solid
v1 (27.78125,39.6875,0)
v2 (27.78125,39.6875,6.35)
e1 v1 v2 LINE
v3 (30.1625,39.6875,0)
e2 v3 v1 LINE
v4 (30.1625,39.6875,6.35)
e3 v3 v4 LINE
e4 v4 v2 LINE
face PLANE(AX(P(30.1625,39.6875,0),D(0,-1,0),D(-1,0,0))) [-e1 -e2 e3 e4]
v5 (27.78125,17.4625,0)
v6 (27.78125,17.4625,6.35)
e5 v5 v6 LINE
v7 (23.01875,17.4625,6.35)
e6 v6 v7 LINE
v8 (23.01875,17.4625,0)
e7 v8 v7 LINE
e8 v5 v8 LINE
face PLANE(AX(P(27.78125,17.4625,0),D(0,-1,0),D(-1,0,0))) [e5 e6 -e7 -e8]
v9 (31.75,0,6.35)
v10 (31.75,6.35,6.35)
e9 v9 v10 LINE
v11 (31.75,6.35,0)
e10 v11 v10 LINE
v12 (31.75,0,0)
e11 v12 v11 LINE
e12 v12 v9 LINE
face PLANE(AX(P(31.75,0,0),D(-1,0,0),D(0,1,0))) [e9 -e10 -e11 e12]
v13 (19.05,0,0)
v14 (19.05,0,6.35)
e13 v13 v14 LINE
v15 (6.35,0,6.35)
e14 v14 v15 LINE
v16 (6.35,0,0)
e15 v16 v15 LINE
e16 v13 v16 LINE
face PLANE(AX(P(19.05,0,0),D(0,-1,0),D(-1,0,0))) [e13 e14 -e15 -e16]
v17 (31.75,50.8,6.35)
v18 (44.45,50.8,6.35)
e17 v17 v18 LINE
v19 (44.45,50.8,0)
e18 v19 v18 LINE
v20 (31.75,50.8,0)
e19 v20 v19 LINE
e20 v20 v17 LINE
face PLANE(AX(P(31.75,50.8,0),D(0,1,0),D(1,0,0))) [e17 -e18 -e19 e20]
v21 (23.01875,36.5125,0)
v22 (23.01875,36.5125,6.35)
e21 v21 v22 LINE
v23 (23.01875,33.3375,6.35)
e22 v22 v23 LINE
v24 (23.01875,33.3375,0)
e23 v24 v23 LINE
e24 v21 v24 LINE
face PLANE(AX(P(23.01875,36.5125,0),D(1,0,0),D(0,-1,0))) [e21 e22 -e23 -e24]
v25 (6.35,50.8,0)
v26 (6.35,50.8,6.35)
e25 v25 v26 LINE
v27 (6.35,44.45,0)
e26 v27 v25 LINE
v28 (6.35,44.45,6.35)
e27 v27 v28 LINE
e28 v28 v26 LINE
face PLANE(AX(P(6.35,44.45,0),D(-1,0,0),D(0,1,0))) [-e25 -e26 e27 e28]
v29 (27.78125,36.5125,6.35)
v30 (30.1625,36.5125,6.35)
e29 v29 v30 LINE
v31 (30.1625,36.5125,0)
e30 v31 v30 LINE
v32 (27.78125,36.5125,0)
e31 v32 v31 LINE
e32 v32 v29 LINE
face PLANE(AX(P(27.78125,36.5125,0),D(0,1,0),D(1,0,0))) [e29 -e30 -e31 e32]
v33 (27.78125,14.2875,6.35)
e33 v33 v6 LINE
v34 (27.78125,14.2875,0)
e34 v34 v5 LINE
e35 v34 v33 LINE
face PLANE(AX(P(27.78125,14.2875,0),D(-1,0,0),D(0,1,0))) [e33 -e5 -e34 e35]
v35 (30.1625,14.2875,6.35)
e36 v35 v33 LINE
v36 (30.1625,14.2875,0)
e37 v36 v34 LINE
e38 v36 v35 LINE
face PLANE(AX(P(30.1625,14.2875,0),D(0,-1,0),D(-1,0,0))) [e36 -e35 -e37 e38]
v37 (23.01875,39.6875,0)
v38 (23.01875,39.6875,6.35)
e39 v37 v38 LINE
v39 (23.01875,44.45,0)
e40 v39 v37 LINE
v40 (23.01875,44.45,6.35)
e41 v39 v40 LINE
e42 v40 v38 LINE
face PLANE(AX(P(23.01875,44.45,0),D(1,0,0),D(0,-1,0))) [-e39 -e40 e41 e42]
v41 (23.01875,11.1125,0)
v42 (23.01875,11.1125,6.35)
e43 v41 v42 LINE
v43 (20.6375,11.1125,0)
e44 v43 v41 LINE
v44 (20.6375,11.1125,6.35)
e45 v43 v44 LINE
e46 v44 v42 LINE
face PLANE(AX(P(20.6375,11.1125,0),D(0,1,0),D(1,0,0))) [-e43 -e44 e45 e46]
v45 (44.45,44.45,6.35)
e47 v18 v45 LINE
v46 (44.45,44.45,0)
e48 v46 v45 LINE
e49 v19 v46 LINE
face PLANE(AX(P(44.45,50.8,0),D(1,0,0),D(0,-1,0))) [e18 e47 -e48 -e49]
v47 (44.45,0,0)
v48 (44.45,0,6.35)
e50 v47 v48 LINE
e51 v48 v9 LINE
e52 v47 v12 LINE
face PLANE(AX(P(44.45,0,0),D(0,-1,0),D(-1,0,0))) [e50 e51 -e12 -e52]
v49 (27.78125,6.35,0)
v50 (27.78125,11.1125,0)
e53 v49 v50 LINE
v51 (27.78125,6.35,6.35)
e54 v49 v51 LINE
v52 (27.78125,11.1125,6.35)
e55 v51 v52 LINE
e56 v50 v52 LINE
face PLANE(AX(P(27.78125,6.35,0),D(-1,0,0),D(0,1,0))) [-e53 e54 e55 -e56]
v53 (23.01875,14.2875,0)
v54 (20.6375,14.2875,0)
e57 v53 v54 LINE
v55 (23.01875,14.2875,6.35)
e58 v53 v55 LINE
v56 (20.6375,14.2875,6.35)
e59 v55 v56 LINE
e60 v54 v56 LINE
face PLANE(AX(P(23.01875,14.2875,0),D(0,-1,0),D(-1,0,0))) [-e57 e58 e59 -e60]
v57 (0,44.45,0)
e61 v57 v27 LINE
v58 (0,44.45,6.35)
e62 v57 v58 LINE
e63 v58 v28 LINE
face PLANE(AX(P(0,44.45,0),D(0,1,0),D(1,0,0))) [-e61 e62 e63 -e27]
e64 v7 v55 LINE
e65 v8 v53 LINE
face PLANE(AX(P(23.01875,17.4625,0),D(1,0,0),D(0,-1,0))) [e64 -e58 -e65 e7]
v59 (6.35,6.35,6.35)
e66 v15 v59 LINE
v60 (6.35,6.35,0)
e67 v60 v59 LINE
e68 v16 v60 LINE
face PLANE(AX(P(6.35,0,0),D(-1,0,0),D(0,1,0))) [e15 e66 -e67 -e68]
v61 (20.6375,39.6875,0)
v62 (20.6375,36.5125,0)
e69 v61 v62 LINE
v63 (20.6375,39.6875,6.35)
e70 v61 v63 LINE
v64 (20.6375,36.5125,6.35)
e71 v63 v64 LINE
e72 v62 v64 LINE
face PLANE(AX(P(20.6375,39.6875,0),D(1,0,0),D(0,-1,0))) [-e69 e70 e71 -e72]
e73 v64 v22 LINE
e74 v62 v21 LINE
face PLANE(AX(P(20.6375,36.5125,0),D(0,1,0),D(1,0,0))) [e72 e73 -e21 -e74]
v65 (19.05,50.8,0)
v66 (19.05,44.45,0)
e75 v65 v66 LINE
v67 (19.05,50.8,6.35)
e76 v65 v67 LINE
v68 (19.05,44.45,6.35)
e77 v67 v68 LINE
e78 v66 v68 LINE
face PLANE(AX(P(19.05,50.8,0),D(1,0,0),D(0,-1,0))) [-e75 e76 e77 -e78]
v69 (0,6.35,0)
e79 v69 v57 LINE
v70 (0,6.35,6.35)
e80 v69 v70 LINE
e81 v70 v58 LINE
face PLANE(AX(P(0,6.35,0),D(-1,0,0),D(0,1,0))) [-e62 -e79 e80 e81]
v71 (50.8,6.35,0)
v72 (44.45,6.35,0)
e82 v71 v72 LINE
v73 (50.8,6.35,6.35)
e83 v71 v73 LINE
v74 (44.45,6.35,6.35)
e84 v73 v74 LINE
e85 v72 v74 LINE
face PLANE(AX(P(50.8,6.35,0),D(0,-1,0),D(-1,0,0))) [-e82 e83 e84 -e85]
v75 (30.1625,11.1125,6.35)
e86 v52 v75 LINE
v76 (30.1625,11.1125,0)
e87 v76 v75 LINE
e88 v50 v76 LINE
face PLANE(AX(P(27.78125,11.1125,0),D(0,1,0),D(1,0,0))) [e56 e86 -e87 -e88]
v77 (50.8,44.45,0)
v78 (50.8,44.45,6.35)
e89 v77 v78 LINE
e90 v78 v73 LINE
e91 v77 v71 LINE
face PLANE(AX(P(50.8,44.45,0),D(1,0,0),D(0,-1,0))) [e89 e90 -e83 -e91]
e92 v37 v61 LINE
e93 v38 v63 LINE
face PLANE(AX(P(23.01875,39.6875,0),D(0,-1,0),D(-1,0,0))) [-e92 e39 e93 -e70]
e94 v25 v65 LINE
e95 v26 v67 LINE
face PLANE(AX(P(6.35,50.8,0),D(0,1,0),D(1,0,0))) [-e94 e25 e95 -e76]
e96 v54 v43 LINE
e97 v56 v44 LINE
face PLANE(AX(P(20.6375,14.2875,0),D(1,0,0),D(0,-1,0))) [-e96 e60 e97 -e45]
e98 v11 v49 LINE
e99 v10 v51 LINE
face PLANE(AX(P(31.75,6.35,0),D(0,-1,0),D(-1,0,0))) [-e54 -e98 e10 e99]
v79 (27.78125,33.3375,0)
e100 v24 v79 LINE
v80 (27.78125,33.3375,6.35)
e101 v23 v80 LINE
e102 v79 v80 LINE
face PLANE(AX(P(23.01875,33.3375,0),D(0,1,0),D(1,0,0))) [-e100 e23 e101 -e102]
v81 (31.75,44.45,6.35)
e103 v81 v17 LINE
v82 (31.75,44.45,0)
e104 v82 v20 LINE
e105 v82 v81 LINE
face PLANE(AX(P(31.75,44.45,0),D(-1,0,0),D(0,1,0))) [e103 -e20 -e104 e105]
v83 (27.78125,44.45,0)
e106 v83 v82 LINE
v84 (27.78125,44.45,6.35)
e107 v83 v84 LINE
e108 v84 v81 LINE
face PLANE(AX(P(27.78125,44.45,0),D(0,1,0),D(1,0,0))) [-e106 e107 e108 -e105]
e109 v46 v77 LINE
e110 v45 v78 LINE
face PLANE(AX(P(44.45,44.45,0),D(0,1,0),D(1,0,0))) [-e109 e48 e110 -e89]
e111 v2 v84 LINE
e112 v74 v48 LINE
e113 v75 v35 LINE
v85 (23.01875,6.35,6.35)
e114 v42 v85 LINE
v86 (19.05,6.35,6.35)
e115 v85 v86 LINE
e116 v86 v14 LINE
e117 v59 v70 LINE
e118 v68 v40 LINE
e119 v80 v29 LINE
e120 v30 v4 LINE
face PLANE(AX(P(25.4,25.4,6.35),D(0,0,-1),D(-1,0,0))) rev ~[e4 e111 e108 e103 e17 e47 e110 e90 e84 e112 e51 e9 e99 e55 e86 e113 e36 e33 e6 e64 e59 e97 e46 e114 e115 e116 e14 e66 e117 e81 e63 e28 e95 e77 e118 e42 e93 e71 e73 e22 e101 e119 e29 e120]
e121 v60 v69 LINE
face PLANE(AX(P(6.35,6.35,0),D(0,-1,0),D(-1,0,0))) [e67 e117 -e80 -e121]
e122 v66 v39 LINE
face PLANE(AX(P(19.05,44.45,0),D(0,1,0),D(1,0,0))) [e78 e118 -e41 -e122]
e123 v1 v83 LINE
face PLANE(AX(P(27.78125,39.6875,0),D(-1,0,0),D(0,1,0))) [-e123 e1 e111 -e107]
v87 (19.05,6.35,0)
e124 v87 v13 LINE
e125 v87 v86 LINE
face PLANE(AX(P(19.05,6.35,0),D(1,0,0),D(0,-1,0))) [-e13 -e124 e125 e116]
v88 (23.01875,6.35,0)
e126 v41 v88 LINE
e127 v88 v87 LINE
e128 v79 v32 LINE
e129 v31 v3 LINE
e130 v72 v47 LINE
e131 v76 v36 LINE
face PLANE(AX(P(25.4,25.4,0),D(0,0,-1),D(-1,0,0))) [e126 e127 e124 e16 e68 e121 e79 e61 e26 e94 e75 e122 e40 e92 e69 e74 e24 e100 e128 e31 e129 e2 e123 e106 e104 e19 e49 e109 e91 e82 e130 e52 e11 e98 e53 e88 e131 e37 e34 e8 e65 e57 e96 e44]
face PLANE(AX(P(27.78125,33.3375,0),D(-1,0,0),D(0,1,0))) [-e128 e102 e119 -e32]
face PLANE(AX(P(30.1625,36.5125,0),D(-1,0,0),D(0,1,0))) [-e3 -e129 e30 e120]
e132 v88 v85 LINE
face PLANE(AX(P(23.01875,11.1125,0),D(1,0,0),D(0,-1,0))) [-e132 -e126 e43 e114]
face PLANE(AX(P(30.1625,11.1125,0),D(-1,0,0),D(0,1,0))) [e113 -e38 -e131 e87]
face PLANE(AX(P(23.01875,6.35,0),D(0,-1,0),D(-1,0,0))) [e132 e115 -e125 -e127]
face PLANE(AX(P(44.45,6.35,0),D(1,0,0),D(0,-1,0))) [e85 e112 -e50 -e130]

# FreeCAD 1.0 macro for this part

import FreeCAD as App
import Part
import Sketcher
from FreeCAD import Vector
Q = App.Units.Quantity


def add_polygon(sketch, points):
    """Adds a closed chain of lines whose ends are joined by coincident constraints."""
    first, n = sketch.GeometryCount, len(points)
    for a, b in zip(points, points[1:] + points[:1]):
        sketch.addGeometry(Part.LineSegment(App.Vector(*a, 0), App.Vector(*b, 0)), False)
    for i in range(n):
        sketch.addConstraint(Sketcher.Constraint("Coincident", first + i, 2, first + (i + 1) % n, 1))

doc = App.newDocument("Part")
body = doc.addObject("PartDesign::Body", "Body")

# Sketch on XY plane
sketch1 = doc.addObject("Sketcher::SketchObject", "Sketch")
body.addObject(sketch1)
sketch1.AttachmentSupport = (doc.XY_Plane, [""])
sketch1.MapMode = "FlatFace"
add_polygon(sketch1, [(31.75, 44.45), (27.78125, 44.45), (27.78125, 39.6875), (30.1625, 39.6875), (30.1625, 36.5125), (27.78125, 36.5125), (27.78125, 33.3375), (23.01875, 33.3375), (23.01875, 36.5125), (20.6375, 36.5125), (20.6375, 39.6875), (23.01875, 39.6875), (23.01875, 44.45), (19.05, 44.45), (19.05, 50.8), (6.35, 50.8), (6.35, 44.45), (0, 44.45), (0, 6.35), (6.35, 6.35), (6.35, 0), (19.05, 0), (19.05, 6.35), (23.01875, 6.35), (23.01875, 11.1125), (20.6375, 11.1125), (20.6375, 14.2875), (23.01875, 14.2875), (23.01875, 17.4625), (27.78125, 17.4625), (27.78125, 14.2875), (30.1625, 14.2875), (30.1625, 11.1125), (27.78125, 11.1125), (27.78125, 6.35), (31.75, 6.35), (31.75, 0), (44.45, 0), (44.45, 6.35), (50.8, 6.35), (50.8, 44.45), (44.45, 44.45), (44.45, 50.8), (31.75, 50.8)])  # lines 0-43
sketch1.addConstraint(Sketcher.Constraint("Horizontal", 0))
sketch1.addConstraint(Sketcher.Constraint("Vertical", 1))
sketch1.addConstraint(Sketcher.Constraint("Horizontal", 2))
sketch1.addConstraint(Sketcher.Constraint("Vertical", 3))
sketch1.addConstraint(Sketcher.Constraint("Horizontal", 4))
sketch1.addConstraint(Sketcher.Constraint("Vertical", 5))
sketch1.addConstraint(Sketcher.Constraint("Horizontal", 6))
sketch1.addConstraint(Sketcher.Constraint("Vertical", 7))
sketch1.addConstraint(Sketcher.Constraint("Horizontal", 8))
sketch1.addConstraint(Sketcher.Constraint("Vertical", 9))
sketch1.addConstraint(Sketcher.Constraint("Horizontal", 10))
sketch1.addConstraint(Sketcher.Constraint("Vertical", 11))
sketch1.addConstraint(Sketcher.Constraint("Horizontal", 12))
sketch1.addConstraint(Sketcher.Constraint("Vertical", 13))
sketch1.addConstraint(Sketcher.Constraint("Horizontal", 14))
sketch1.addConstraint(Sketcher.Constraint("Vertical", 15))
sketch1.addConstraint(Sketcher.Constraint("Horizontal", 16))
sketch1.addConstraint(Sketcher.Constraint("Vertical", 17))
sketch1.addConstraint(Sketcher.Constraint("Horizontal", 18))
sketch1.addConstraint(Sketcher.Constraint("Vertical", 19))
sketch1.addConstraint(Sketcher.Constraint("Horizontal", 20))
sketch1.addConstraint(Sketcher.Constraint("Vertical", 21))
sketch1.addConstraint(Sketcher.Constraint("Horizontal", 22))
sketch1.addConstraint(Sketcher.Constraint("Vertical", 23))
sketch1.addConstraint(Sketcher.Constraint("Horizontal", 24))
sketch1.addConstraint(Sketcher.Constraint("Vertical", 25))
sketch1.addConstraint(Sketcher.Constraint("Horizontal", 26))
sketch1.addConstraint(Sketcher.Constraint("Vertical", 27))
sketch1.addConstraint(Sketcher.Constraint("Horizontal", 28))
sketch1.addConstraint(Sketcher.Constraint("Vertical", 29))
sketch1.addConstraint(Sketcher.Constraint("Horizontal", 30))
sketch1.addConstraint(Sketcher.Constraint("Vertical", 31))
sketch1.addConstraint(Sketcher.Constraint("Horizontal", 32))
sketch1.addConstraint(Sketcher.Constraint("Vertical", 33))
sketch1.addConstraint(Sketcher.Constraint("Horizontal", 34))
sketch1.addConstraint(Sketcher.Constraint("Vertical", 35))
sketch1.addConstraint(Sketcher.Constraint("Horizontal", 36))
sketch1.addConstraint(Sketcher.Constraint("Vertical", 37))
sketch1.addConstraint(Sketcher.Constraint("Horizontal", 38))
sketch1.addConstraint(Sketcher.Constraint("Vertical", 39))
sketch1.addConstraint(Sketcher.Constraint("Horizontal", 40))
sketch1.addConstraint(Sketcher.Constraint("Vertical", 41))
sketch1.addConstraint(Sketcher.Constraint("Horizontal", 42))
sketch1.addConstraint(Sketcher.Constraint("Vertical", 43))
sketch1.addConstraint(Sketcher.Constraint("PointOnObject", 16, 2, -2))
sketch1.addConstraint(Sketcher.Constraint("PointOnObject", 19, 2, -1))
sketch1.addConstraint(Sketcher.Constraint("PointOnObject", 35, 2, -1))
sketch1.addConstraint(Sketcher.Constraint("Horizontal", 4, 2, 7, 2))
sketch1.addConstraint(Sketcher.Constraint("Horizontal", 2, 2, 9, 2))
sketch1.addConstraint(Sketcher.Constraint("Horizontal", 0, 2, 11, 2))
sketch1.addConstraint(Sketcher.Constraint("Horizontal", 12, 2, 15, 2))
sketch1.addConstraint(Sketcher.Constraint("Horizontal", 18, 2, 21, 2))
sketch1.addConstraint(Sketcher.Constraint("Horizontal", 26, 2, 29, 2))
sketch1.addConstraint(Sketcher.Constraint("Horizontal", 24, 2, 31, 2))
sketch1.addConstraint(Sketcher.Constraint("Horizontal", 22, 2, 33, 2))
sketch1.addConstraint(Sketcher.Constraint("Horizontal", 34, 2, 37, 2))
sketch1.addConstraint(Sketcher.Constraint("Horizontal", 16, 2, 39, 2))
sketch1.addConstraint(Sketcher.Constraint("Horizontal", 14, 2, 41, 2))
sketch1.addConstraint(Sketcher.Constraint("Vertical", 1, 2, 4, 2))
sketch1.addConstraint(Sketcher.Constraint("Vertical", 7, 2, 10, 2))
sketch1.addConstraint(Sketcher.Constraint("Vertical", 15, 2, 18, 2))
sketch1.addConstraint(Sketcher.Constraint("Vertical", 13, 2, 20, 2))
sketch1.addConstraint(Sketcher.Constraint("Vertical", 11, 2, 22, 2))
sketch1.addConstraint(Sketcher.Constraint("Vertical", 9, 2, 24, 2))
sketch1.addConstraint(Sketcher.Constraint("Vertical", 23, 2, 26, 2))
sketch1.addConstraint(Sketcher.Constraint("Vertical", 5, 2, 28, 2))
sketch1.addConstraint(Sketcher.Constraint("Vertical", 3, 2, 30, 2))
sketch1.addConstraint(Sketcher.Constraint("Vertical", 29, 2, 32, 2))
sketch1.addConstraint(Sketcher.Constraint("Vertical", 37, 2, 40, 2))
sketch1.addConstraint(Sketcher.Constraint("Vertical", 35, 2, 42, 2))
sketch1.addConstraint(Sketcher.Constraint("Equal", 4, 8))
sketch1.addConstraint(Sketcher.Constraint("Equal", 0, 12))
sketch1.addConstraint(Sketcher.Constraint("Equal", 20, 36))
sketch1.addConstraint(Sketcher.Constraint("Equal", 18, 38))
sketch1.addConstraint(Sketcher.Constraint("Equal", 28, 1))
sketch1.addConstraint(Sketcher.Constraint("Equal", 3, 5))
sketch1.addConstraint(Sketcher.Constraint("Equal", 40, 13))
sketch1.addConstraint(Sketcher.Constraint("Equal", 15, 19))
sketch1.addConstraint(Sketcher.Constraint("Equal", 11, 23))
sketch1.addConstraint(Sketcher.Constraint("Equal", 9, 25))
sketch1.addConstraint(Sketcher.Constraint("Equal", 25, 27))
sketch1.addConstraint(Sketcher.Constraint("DistanceX", 14, 2, 14, 1, Q("0.5 in")))
sketch1.addConstraint(Sketcher.Constraint("DistanceY", 17, 2, 17, 1, Q("1.5 in")))
sketch1.addConstraint(Sketcher.Constraint("DistanceY", -1, 1, 13, 2, Q("2 in")))
sketch1.addConstraint(Sketcher.Constraint("DistanceX", -1, 1, 38, 2, Q("2 in")))
sketch1.addConstraint(Sketcher.Constraint("DistanceX", 0, 2, 0, 1, Q("0.15625 in")))
sketch1.addConstraint(Sketcher.Constraint("DistanceX", 2, 1, 2, 2, Q("0.09375 in")))
sketch1.addConstraint(Sketcher.Constraint("DistanceY", 3, 2, 3, 1, Q("0.125 in")))
pad1 = doc.addObject("PartDesign::Pad", "Pad")
body.addObject(pad1)
pad1.Profile = sketch1
pad1.Length = Q("0.25 in")

doc.recompute()
